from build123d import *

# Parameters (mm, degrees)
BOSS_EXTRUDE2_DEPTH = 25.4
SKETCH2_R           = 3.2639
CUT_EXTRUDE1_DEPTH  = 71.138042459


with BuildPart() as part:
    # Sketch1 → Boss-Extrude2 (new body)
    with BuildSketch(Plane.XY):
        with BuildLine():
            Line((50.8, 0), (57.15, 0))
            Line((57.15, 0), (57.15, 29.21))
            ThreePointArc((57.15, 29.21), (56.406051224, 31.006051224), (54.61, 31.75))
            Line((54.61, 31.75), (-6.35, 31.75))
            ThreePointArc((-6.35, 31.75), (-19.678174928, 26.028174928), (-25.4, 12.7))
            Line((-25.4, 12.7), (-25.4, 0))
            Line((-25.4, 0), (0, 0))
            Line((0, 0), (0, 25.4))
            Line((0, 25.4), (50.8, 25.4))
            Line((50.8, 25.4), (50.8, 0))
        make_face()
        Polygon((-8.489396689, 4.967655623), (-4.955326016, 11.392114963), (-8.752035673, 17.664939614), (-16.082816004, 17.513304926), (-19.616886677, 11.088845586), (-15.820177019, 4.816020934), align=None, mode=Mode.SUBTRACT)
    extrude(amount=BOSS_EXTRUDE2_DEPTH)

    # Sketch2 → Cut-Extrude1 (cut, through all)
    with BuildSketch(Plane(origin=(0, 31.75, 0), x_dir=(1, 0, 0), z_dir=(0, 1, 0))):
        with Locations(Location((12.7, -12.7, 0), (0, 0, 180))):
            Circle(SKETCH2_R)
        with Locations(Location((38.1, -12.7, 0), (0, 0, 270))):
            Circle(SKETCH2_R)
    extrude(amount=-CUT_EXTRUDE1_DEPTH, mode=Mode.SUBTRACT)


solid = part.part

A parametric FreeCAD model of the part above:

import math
import FreeCAD as App
import Part
import Sketcher
Q = App.Units.Quantity


def add_polygon(sketch, points):
    """Adds a closed chain of lines whose ends are joined by coincident constraints."""
    first, n = sketch.GeometryCount, len(points)
    for a, b in zip(points, points[1:] + points[:1]):
        sketch.addGeometry(Part.LineSegment(App.Vector(*a, 0), App.Vector(*b, 0)), False)
    for i in range(n):
        sketch.addConstraint(Sketcher.Constraint("Coincident", first + i, 2, first + (i + 1) % n, 1))

doc = App.newDocument("Part")
params = doc.addObject("Spreadsheet::Sheet", "Params")
for row, (alias, value) in enumerate([
    ("sketch1_radius", "0.1 in"),
    ("sketch1_width", "1 in"),
    ("sketch1_width2", "2 in"),
    ("sketch1_width3", "2.4 in"),
    ("sketch1_height", "0.5 in"),
    ("pad1_length", "1 in"),
    ("sketch2_diameter", "0.257 in"),
], start=1):
    params.set(f"A{row}", alias)
    params.set(f"B{row}", "=" + value)
    params.setAlias(f"B{row}", alias)

body = doc.addObject("PartDesign::Body", "Body")

sketch1 = body.newObject("Sketcher::SketchObject", "Sketch")
sketch1.AttachmentSupport = (doc.getObject("XY_Plane"), [""])
sketch1.MapMode = "FlatFace"
sketch1.addGeometry(Part.LineSegment(App.Vector(50.8, 0, 0), App.Vector(57.1, 0, 0)), False)
sketch1.addGeometry(Part.LineSegment(App.Vector(57.1, 0, 0), App.Vector(57.1, 29.2, 0)), False)
sketch1.addGeometry(Part.ArcOfCircle(Part.Circle(App.Vector(54.6, 29.2, 0), App.Vector(0, 0, 1), 2.5), math.radians(0), math.radians(90)), False)
sketch1.addGeometry(Part.LineSegment(App.Vector(54.6, 31.8, 0), App.Vector(-6.3, 31.8, 0)), False)
sketch1.addGeometry(Part.ArcOfCircle(Part.Circle(App.Vector(-5.8, 12.2, 0), App.Vector(0, 0, 1), 19.6), math.radians(91), math.radians(179)), False)
sketch1.addGeometry(Part.LineSegment(App.Vector(-25.4, 12.7, 0), App.Vector(-25.4, 0, 0)), False)
sketch1.addGeometry(Part.LineSegment(App.Vector(-25.4, 0, 0), App.Vector(0, 0, 0)), False)
sketch1.addGeometry(Part.LineSegment(App.Vector(0, 0, 0), App.Vector(0, 25.4, 0)), False)
sketch1.addGeometry(Part.LineSegment(App.Vector(0, 25.4, 0), App.Vector(50.8, 25.4, 0)), False)
sketch1.addGeometry(Part.LineSegment(App.Vector(50.8, 25.4, 0), App.Vector(50.8, 0, 0)), False)
add_polygon(sketch1, [(-5, 11.4), (-8.5, 5), (-15.8, 4.8), (-19.6, 11.1), (-16.1, 17.5), (-8.8, 17.7)])
sketch1.addConstraint(Sketcher.Constraint("Coincident", 0, 2, 1, 1))
sketch1.addConstraint(Sketcher.Constraint("Tangent", 1, 2, 2, 1))
sketch1.addConstraint(Sketcher.Constraint("Tangent", 2, 2, 3, 1))
sketch1.addConstraint(Sketcher.Constraint("Coincident", 3, 2, 4, 1))
sketch1.addConstraint(Sketcher.Constraint("Coincident", 4, 2, 5, 1))
sketch1.addConstraint(Sketcher.Constraint("Coincident", 5, 2, 6, 1))
sketch1.addConstraint(Sketcher.Constraint("Coincident", 6, 2, 7, 1))
sketch1.addConstraint(Sketcher.Constraint("Coincident", 7, 2, 8, 1))
sketch1.addConstraint(Sketcher.Constraint("Coincident", 8, 2, 9, 1))
sketch1.addConstraint(Sketcher.Constraint("Coincident", 9, 2, 0, 1))
sketch1.addConstraint(Sketcher.Constraint("Horizontal", 0))
sketch1.addConstraint(Sketcher.Constraint("Vertical", 1))
sketch1.addConstraint(Sketcher.Constraint("Horizontal", 3))
sketch1.addConstraint(Sketcher.Constraint("Vertical", 5))
sketch1.addConstraint(Sketcher.Constraint("Horizontal", 6))
sketch1.addConstraint(Sketcher.Constraint("Vertical", 7))
sketch1.addConstraint(Sketcher.Constraint("Horizontal", 8))
sketch1.addConstraint(Sketcher.Constraint("Vertical", 9))
sketch1.addConstraint(Sketcher.Constraint("Coincident", 6, 2, -1, 1))
sketch1.addConstraint(Sketcher.Constraint("PointOnObject", 0, 2, -1))
sketch1.addConstraint(Sketcher.Constraint("Parallel", 10, 13))
sketch1.addConstraint(Sketcher.Constraint("Parallel", 11, 14))
sketch1.addConstraint(Sketcher.Constraint("Parallel", 12, 15))
sketch1.addConstraint(Sketcher.Constraint("Equal", 6, 7))
sketch1.addConstraint(Sketcher.Constraint("Equal", 10, 11))
sketch1.addConstraint(Sketcher.Constraint("Equal", 11, 12))
sketch1.addConstraint(Sketcher.Constraint("Equal", 12, 13))
sketch1.addConstraint(Sketcher.Constraint("Radius", 2, Q("0.1 in")))
sketch1.addConstraint(Sketcher.Constraint("DistanceX", 6, 1, 6, 2, Q("1 in")))
sketch1.addConstraint(Sketcher.Constraint("DistanceX", 8, 1, 8, 2, Q("2 in")))
sketch1.addConstraint(Sketcher.Constraint("DistanceX", 3, 2, 3, 1, Q("2.4 in")))
sketch1.addConstraint(Sketcher.Constraint("DistanceY", 5, 2, 5, 1, Q("0.5 in")))
sketch1.addConstraint(Sketcher.Constraint("DistanceX", 0, 1, 0, 2, Q("0.25 in")))
sketch1.addConstraint(Sketcher.Constraint("DistanceY", 1, 1, 1, 2, Q("1.15 in")))
sketch1.addConstraint(Sketcher.Constraint("DistanceY", -1, 1, 13, 2, Q("0.6895002 in")))
sketch1.addConstraint(Sketcher.Constraint("Radius", 4, Q("19.557448 mm")))
sketch1.addConstraint(Sketcher.Constraint("Distance", 10, Q("7.332348 mm")))
sketch1.addConstraint(Sketcher.Constraint("DistanceY", -1, 1, 11, 2, Q("4.816021 mm")))
sketch1.addConstraint(Sketcher.Constraint("DistanceY", -1, 1, 14, 2, Q("17.66494 mm")))
sketch1.addConstraint(Sketcher.Constraint("DistanceX", 12, 2, 11, 2, Q("3.79671 mm")))
sketch1.addConstraint(Sketcher.Constraint("DistanceX", 10, 2, -1, 1, Q("8.489397 mm")))
sketch1.setExpression("Constraints[33]", "Params.sketch1_radius")
sketch1.setExpression("Constraints[34]", "Params.sketch1_width")
sketch1.setExpression("Constraints[35]", "Params.sketch1_width2")
sketch1.setExpression("Constraints[36]", "Params.sketch1_width3")
sketch1.setExpression("Constraints[37]", "Params.sketch1_height")
pad1 = body.newObject("PartDesign::Pad", "Pad")
pad1.Profile = sketch1
pad1.setExpression("Length", "Params.pad1_length")

sketch2 = body.newObject("Sketcher::SketchObject", "Sketch001")
sketch2.AttachmentSupport = (doc.getObject("XZ_Plane"), [""])
sketch2.MapMode = "FlatFace"
sketch2.AttachmentOffset = App.Placement(App.Vector(0, 0, -1.25 * 25.4), App.Rotation())
sketch2.addGeometry(Part.Circle(App.Vector(12.7, 12.7, 0), App.Vector(0, 0, 1), 3.3), False)
sketch2.addGeometry(Part.Circle(App.Vector(38.1, 12.7, 0), App.Vector(0, 0, 1), 3.3), False)
sketch2.addConstraint(Sketcher.Constraint("Equal", 0, 1))
sketch2.addConstraint(Sketcher.Constraint("Horizontal", 0, 3, 1, 3))
sketch2.addConstraint(Sketcher.Constraint("Diameter", 0, Q("0.257 in")))
sketch2.addConstraint(Sketcher.Constraint("DistanceX", 0, 3, 1, 3, Q("1 in")))
sketch2.addConstraint(Sketcher.Constraint("DistanceX", -1, 1, 0, 3, Q("0.5 in")))
sketch2.addConstraint(Sketcher.Constraint("DistanceY", -1, 1, 0, 3, Q("0.5 in")))
sketch2.setExpression("Constraints[2]", "Params.sketch2_diameter")
pocket1 = body.newObject("PartDesign::Pocket", "Pocket")
pocket1.Profile = sketch2
pocket1.Type = "ThroughAll"
pocket1.Reversed = True

doc.recompute()
